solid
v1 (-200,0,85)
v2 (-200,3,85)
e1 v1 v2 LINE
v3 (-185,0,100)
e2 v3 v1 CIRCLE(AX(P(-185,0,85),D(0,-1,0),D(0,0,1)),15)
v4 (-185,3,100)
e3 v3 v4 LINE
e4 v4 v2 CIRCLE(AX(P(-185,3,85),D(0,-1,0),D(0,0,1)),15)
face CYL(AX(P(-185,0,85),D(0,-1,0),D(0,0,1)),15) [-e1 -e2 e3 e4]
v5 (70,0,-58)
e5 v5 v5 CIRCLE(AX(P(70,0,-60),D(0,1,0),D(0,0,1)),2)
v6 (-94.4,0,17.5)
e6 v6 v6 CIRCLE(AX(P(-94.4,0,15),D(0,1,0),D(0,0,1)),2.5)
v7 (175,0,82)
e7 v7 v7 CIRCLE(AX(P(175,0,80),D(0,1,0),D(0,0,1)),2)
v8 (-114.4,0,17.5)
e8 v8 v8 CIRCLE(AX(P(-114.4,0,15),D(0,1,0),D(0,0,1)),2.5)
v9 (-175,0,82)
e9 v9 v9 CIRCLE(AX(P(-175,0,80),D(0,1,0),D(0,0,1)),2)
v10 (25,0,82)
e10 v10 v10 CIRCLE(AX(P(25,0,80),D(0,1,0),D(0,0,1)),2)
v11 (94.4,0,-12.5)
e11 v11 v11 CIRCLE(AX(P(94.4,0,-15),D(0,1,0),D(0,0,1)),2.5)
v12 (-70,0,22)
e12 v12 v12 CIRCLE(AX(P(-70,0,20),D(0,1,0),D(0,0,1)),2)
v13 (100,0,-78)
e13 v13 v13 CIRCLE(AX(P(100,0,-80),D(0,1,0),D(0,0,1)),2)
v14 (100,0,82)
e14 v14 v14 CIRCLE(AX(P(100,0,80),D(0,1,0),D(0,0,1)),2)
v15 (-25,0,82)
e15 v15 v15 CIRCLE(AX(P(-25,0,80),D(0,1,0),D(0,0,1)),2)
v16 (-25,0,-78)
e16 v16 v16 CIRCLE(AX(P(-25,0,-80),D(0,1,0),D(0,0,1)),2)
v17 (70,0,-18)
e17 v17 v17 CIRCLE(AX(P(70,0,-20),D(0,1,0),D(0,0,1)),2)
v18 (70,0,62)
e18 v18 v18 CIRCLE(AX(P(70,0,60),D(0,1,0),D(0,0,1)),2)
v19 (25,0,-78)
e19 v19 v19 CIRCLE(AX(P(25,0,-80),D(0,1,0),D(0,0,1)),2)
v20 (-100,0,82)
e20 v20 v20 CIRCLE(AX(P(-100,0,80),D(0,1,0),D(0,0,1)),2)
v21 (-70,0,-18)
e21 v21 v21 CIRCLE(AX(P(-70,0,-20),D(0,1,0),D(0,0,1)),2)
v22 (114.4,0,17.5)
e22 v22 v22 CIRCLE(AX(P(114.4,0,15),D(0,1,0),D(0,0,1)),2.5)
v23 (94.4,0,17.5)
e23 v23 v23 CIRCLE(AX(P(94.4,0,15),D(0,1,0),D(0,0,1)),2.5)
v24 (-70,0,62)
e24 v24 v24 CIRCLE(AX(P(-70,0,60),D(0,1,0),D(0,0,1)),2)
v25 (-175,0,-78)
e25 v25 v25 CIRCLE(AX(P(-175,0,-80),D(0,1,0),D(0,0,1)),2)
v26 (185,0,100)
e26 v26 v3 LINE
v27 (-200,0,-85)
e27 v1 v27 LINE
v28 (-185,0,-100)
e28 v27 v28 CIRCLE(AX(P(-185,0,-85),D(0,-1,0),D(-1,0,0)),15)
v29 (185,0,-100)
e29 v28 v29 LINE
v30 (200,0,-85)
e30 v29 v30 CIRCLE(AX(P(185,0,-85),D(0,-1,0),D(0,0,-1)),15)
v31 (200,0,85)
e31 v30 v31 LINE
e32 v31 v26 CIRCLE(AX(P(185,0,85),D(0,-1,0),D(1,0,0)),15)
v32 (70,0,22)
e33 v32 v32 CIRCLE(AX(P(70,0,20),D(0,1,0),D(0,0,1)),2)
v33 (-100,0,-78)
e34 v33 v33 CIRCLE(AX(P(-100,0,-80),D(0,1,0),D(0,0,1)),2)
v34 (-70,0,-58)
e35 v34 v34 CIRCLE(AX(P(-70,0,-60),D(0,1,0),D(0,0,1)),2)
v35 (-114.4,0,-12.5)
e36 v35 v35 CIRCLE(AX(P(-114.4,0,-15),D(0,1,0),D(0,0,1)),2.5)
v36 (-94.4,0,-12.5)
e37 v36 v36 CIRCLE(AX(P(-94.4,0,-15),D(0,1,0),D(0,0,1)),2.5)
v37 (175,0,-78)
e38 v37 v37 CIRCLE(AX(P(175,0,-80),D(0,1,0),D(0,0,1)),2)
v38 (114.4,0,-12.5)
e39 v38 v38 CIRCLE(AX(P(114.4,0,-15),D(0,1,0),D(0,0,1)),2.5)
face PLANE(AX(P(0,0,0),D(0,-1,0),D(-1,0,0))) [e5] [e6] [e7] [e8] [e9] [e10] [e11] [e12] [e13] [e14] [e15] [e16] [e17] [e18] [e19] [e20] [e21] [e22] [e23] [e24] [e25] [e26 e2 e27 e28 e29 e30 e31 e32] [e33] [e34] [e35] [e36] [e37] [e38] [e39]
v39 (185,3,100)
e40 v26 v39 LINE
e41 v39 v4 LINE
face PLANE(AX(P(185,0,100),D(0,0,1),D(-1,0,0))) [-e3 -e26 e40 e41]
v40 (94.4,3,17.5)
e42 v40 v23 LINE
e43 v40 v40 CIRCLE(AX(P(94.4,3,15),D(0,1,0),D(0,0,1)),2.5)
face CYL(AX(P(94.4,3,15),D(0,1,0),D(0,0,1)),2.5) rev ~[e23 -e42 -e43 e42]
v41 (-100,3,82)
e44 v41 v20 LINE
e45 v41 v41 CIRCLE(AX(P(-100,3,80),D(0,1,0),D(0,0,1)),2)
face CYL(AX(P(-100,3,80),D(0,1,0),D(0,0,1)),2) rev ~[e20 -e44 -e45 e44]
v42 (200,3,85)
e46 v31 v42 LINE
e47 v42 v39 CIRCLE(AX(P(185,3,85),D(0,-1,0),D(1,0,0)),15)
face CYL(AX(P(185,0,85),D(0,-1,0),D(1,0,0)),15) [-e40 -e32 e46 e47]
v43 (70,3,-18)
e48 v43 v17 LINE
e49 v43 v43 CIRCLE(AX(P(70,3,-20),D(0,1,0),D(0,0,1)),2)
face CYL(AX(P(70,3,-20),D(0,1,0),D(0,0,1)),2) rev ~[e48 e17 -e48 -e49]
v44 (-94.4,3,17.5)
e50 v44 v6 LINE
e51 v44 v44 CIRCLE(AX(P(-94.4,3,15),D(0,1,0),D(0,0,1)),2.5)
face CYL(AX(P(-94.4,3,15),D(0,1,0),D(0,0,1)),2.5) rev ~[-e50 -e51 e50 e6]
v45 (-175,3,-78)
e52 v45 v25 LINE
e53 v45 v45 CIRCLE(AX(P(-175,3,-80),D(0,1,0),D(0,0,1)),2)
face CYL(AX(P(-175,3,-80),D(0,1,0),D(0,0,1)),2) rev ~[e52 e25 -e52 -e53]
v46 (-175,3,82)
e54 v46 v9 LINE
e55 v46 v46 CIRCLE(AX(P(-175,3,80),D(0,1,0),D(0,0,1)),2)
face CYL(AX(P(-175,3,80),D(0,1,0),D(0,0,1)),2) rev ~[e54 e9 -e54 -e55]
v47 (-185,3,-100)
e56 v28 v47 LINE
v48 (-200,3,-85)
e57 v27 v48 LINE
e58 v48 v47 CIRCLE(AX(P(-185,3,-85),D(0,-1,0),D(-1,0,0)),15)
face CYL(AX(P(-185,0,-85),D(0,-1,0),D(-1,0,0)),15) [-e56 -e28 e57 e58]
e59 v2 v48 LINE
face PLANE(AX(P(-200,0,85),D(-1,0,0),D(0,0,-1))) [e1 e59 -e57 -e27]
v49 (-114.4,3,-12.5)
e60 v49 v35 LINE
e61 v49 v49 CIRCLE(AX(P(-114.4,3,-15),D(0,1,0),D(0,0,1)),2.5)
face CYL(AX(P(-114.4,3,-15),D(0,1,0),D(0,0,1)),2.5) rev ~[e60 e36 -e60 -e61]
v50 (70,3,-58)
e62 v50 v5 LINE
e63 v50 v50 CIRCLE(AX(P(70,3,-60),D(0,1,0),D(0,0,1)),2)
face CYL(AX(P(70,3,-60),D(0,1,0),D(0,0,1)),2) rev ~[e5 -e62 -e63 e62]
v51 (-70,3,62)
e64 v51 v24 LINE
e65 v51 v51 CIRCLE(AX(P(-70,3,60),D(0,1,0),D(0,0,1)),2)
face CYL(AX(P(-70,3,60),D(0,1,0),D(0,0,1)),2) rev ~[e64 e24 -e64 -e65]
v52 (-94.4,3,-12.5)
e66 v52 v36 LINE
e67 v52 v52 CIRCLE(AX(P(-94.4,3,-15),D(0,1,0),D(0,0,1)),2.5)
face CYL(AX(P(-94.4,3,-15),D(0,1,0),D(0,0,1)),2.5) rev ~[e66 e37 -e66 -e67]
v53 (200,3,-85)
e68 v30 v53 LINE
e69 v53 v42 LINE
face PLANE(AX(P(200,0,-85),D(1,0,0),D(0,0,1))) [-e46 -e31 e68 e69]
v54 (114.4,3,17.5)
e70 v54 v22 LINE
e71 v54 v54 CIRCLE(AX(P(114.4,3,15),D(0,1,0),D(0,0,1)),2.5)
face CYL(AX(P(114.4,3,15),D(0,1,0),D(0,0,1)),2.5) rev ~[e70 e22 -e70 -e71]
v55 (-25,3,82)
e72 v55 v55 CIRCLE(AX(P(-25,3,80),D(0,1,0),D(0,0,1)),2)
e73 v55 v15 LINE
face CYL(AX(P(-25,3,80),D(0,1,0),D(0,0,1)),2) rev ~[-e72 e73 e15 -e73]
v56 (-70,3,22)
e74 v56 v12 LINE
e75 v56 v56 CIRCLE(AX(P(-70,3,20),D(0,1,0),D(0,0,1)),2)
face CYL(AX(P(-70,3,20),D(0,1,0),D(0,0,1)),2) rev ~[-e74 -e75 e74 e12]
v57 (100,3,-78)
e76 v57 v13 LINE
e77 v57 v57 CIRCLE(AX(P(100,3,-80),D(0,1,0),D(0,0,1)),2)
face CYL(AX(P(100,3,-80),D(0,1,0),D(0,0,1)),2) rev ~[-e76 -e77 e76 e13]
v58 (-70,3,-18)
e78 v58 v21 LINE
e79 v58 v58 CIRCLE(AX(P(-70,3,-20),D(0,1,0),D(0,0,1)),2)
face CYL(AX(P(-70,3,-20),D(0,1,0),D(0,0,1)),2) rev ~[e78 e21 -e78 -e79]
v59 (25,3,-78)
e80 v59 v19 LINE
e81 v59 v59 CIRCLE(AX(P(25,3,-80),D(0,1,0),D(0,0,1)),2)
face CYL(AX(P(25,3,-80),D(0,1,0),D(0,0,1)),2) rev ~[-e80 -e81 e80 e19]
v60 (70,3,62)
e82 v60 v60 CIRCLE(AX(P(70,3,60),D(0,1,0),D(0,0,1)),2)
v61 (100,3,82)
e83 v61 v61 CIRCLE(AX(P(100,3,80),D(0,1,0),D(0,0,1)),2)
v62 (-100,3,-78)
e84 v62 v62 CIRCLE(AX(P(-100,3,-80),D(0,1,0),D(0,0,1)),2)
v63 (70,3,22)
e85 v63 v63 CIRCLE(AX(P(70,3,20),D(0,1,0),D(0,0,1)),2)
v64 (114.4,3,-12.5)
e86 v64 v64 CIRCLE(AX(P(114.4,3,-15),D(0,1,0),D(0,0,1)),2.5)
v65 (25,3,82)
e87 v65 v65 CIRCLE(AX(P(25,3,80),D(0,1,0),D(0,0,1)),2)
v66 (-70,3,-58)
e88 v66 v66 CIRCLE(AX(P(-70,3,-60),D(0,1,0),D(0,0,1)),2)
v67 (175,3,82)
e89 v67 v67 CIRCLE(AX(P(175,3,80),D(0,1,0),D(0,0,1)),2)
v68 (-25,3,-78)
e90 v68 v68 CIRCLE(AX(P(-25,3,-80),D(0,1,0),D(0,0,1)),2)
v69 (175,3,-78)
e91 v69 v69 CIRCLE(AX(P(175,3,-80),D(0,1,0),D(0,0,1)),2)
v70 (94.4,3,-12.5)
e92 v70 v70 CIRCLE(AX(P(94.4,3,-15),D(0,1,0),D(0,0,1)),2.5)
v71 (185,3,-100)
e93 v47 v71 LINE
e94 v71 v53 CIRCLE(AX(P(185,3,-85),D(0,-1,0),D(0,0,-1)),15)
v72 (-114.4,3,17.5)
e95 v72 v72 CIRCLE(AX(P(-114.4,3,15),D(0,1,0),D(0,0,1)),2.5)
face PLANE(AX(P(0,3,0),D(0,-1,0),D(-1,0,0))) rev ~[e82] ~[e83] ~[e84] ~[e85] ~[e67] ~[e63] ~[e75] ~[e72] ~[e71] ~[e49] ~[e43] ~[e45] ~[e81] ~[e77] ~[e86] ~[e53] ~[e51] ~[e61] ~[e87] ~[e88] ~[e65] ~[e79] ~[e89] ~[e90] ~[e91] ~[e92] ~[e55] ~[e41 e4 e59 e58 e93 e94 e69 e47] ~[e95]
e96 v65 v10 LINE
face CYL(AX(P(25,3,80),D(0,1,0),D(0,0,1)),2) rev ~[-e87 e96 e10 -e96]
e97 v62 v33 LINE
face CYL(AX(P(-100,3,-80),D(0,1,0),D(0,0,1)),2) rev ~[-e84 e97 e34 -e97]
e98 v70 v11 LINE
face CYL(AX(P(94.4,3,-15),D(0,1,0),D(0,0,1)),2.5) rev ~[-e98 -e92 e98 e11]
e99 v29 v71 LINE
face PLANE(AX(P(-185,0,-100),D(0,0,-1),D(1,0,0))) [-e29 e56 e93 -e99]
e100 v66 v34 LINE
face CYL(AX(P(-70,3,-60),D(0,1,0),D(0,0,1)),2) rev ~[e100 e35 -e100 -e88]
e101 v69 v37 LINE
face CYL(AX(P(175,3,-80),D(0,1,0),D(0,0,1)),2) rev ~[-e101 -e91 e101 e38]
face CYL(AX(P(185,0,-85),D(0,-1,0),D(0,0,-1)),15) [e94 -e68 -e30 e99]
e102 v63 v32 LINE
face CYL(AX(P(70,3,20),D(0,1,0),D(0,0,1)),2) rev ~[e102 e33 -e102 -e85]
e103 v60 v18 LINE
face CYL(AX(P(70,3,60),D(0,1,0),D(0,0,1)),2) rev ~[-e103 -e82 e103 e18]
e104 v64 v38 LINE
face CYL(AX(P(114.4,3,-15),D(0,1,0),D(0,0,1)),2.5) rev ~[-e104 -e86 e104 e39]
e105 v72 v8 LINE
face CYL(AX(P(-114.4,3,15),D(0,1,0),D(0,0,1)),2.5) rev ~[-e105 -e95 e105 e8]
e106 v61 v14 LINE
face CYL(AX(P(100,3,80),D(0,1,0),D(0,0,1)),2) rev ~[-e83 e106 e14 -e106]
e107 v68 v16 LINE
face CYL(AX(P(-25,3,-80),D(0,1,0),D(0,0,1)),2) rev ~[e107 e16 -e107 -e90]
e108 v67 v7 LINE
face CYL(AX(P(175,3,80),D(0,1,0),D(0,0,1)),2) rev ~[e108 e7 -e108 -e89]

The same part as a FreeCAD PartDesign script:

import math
import FreeCAD as App
import Part
import Sketcher

V = App.Vector
Q = App.Units.Quantity

doc = App.newDocument("Part")
body = doc.addObject("PartDesign::Body", "Body")

sketch1 = body.newObject("Sketcher::SketchObject", "Sketch")
sketch1.AttachmentSupport = (doc.getObject("XZ_Plane"), [""])
sketch1.MapMode = "FlatFace"
sketch1.addGeometry(Part.LineSegment(V(185, -100, 0), V(-185, -100, 0)), False)
sketch1.addGeometry(Part.ArcOfCircle(Part.Circle(V(-185, -85, 0), V(0, 0, 1), 15), math.radians(180), math.radians(270)), False)
sketch1.addGeometry(Part.LineSegment(V(-200, -85, 0), V(-200, 85, 0)), False)
sketch1.addGeometry(Part.ArcOfCircle(Part.Circle(V(-185, 85, 0), V(0, 0, 1), 15), math.radians(90), math.radians(180)), False)
sketch1.addGeometry(Part.LineSegment(V(-185, 100, 0), V(185, 100, 0)), False)
sketch1.addGeometry(Part.ArcOfCircle(Part.Circle(V(185, 85, 0), V(0, 0, 1), 15), math.radians(0), math.radians(90)), False)
sketch1.addGeometry(Part.LineSegment(V(200, 85, 0), V(200, -85, 0)), False)
sketch1.addGeometry(Part.ArcOfCircle(Part.Circle(V(185, -85, 0), V(0, 0, 1), 15), math.radians(-90), math.radians(0)), False)
sketch1.addConstraint(Sketcher.Constraint("Tangent", 0, 2, 1, 2))
sketch1.addConstraint(Sketcher.Constraint("Tangent", 1, 1, 2, 1))
sketch1.addConstraint(Sketcher.Constraint("Tangent", 2, 2, 3, 2))
sketch1.addConstraint(Sketcher.Constraint("Tangent", 3, 1, 4, 1))
sketch1.addConstraint(Sketcher.Constraint("Tangent", 4, 2, 5, 2))
sketch1.addConstraint(Sketcher.Constraint("Tangent", 5, 1, 6, 1))
sketch1.addConstraint(Sketcher.Constraint("Tangent", 6, 2, 7, 2))
sketch1.addConstraint(Sketcher.Constraint("Tangent", 7, 1, 0, 1))
sketch1.addConstraint(Sketcher.Constraint("Horizontal", 0))
sketch1.addConstraint(Sketcher.Constraint("Vertical", 2))
sketch1.addConstraint(Sketcher.Constraint("Horizontal", 4))
sketch1.addConstraint(Sketcher.Constraint("Vertical", 6))
sketch1.addConstraint(Sketcher.Constraint("Equal", 1, 3))
sketch1.addConstraint(Sketcher.Constraint("Equal", 3, 5))
sketch1.addConstraint(Sketcher.Constraint("Equal", 5, 7))
sketch1.addConstraint(Sketcher.Constraint("Symmetric", 1, 3, 5, 3, -1, 1))
sketch1.addConstraint(Sketcher.Constraint("Radius", 1, Q("15 mm")))
sketch1.addConstraint(Sketcher.Constraint("DistanceX", 0, 2, 0, 1, Q("370 mm")))
sketch1.addConstraint(Sketcher.Constraint("DistanceY", 2, 1, 2, 2, Q("170 mm")))
pad1 = body.newObject("PartDesign::Pad", "Pad")
pad1.Profile = sketch1
pad1.Length = 3
pad1.Reversed = True

sketch2 = body.newObject("Sketcher::SketchObject", "Sketch001")
sketch2.AttachmentSupport = (doc.getObject("XZ_Plane"), [""])
sketch2.MapMode = "FlatFace"
sketch2.AttachmentOffset = App.Placement(V(0, 0, -3), App.Rotation())
sketch2.addGeometry(Part.Circle(V(-114.4, -15, 0), V(0, 0, 1), 2.5), False)
sketch2.addGeometry(Part.Circle(V(-94.4, -15, 0), V(0, 0, 1), 2.5), False)
sketch2.addGeometry(Part.Circle(V(-114.4, 15, 0), V(0, 0, 1), 2.5), False)
sketch2.addGeometry(Part.Circle(V(-94.4, 15, 0), V(0, 0, 1), 2.5), False)
sketch2.addGeometry(Part.Circle(V(94.4, -15, 0), V(0, 0, 1), 2.5), False)
sketch2.addGeometry(Part.Circle(V(114.4, -15, 0), V(0, 0, 1), 2.5), False)
sketch2.addGeometry(Part.Circle(V(114.4, 15, 0), V(0, 0, 1), 2.5), False)
sketch2.addGeometry(Part.Circle(V(94.4, 15, 0), V(0, 0, 1), 2.5), False)
sketch2.addConstraint(Sketcher.Constraint("Equal", 0, 1))
sketch2.addConstraint(Sketcher.Constraint("Equal", 1, 2))
sketch2.addConstraint(Sketcher.Constraint("Equal", 2, 3))
sketch2.addConstraint(Sketcher.Constraint("Equal", 3, 4))
sketch2.addConstraint(Sketcher.Constraint("Equal", 4, 5))
sketch2.addConstraint(Sketcher.Constraint("Equal", 5, 6))
sketch2.addConstraint(Sketcher.Constraint("Equal", 6, 7))
sketch2.addConstraint(Sketcher.Constraint("Symmetric", 3, 3, 4, 3, -1, 1))
sketch2.addConstraint(Sketcher.Constraint("Symmetric", 2, 3, 5, 3, -1, 1))
sketch2.addConstraint(Sketcher.Constraint("Symmetric", 0, 3, 6, 3, -1, 1))
sketch2.addConstraint(Sketcher.Constraint("Symmetric", 1, 3, 7, 3, -1, 1))
sketch2.addConstraint(Sketcher.Constraint("Symmetric", 1, 3, 4, 3, -2))
sketch2.addConstraint(Sketcher.Constraint("Symmetric", 0, 3, 5, 3, -2))
sketch2.addConstraint(Sketcher.Constraint("Horizontal", 0, 3, 1, 3))
sketch2.addConstraint(Sketcher.Constraint("Diameter", 0, Q("5 mm")))
sketch2.addConstraint(Sketcher.Constraint("DistanceY", 0, 3, -1, 1, Q("15 mm")))
sketch2.addConstraint(Sketcher.Constraint("DistanceX", 0, 3, 1, 3, Q("20 mm")))
sketch2.addConstraint(Sketcher.Constraint("DistanceX", 0, 3, -1, 1, Q("114.4 mm")))
pocket1 = body.newObject("PartDesign::Pocket", "Pocket")
pocket1.Profile = sketch2
pocket1.Length = 3
pocket1.Reversed = True

sketch3 = body.newObject("Sketcher::SketchObject", "Sketch002")
sketch3.AttachmentSupport = (doc.getObject("XZ_Plane"), [""])
sketch3.MapMode = "FlatFace"
sketch3.AttachmentOffset = App.Placement(V(0, 0, -3), App.Rotation())
sketch3.addGeometry(Part.Circle(V(-175, -80, 0), V(0, 0, 1), 2), False)
sketch3.addGeometry(Part.Circle(V(-100, -80, 0), V(0, 0, 1), 2), False)
sketch3.addGeometry(Part.Circle(V(-25, -80, 0), V(0, 0, 1), 2), False)
sketch3.addGeometry(Part.Circle(V(175, -80, 0), V(0, 0, 1), 2), False)
sketch3.addGeometry(Part.Circle(V(100, -80, 0), V(0, 0, 1), 2), False)
sketch3.addGeometry(Part.Circle(V(25, -80, 0), V(0, 0, 1), 2), False)
sketch3.addConstraint(Sketcher.Constraint("Equal", 0, 1))
sketch3.addConstraint(Sketcher.Constraint("Equal", 1, 2))
sketch3.addConstraint(Sketcher.Constraint("Equal", 2, 3))
sketch3.addConstraint(Sketcher.Constraint("Equal", 3, 4))
sketch3.addConstraint(Sketcher.Constraint("Equal", 4, 5))
sketch3.addConstraint(Sketcher.Constraint("Symmetric", 0, 3, 3, 3, -2))
sketch3.addConstraint(Sketcher.Constraint("Symmetric", 1, 3, 4, 3, -2))
sketch3.addConstraint(Sketcher.Constraint("Symmetric", 2, 3, 5, 3, -2))
sketch3.addConstraint(Sketcher.Constraint("Horizontal", 0, 3, 1, 3))
sketch3.addConstraint(Sketcher.Constraint("Horizontal", 1, 3, 2, 3))
sketch3.addConstraint(Sketcher.Constraint("Diameter", 0, Q("4 mm")))
sketch3.addConstraint(Sketcher.Constraint("DistanceX", 0, 3, -1, 1, Q("175 mm")))
sketch3.addConstraint(Sketcher.Constraint("DistanceY", 0, 3, -1, 1, Q("80 mm")))
sketch3.addConstraint(Sketcher.Constraint("DistanceX", 1, 3, -1, 1, Q("100 mm")))
sketch3.addConstraint(Sketcher.Constraint("DistanceX", 2, 3, -1, 1, Q("25 mm")))
pocket2 = body.newObject("PartDesign::Pocket", "Pocket001")
pocket2.Profile = sketch3
pocket2.Type = "ThroughAll"
pocket2.Reversed = True

sketch4 = body.newObject("Sketcher::SketchObject", "Sketch003")
sketch4.AttachmentSupport = (doc.getObject("XZ_Plane"), [""])
sketch4.MapMode = "FlatFace"
sketch4.AttachmentOffset = App.Placement(V(0, 0, -3), App.Rotation())
sketch4.addGeometry(Part.Circle(V(-175, 80, 0), V(0, 0, 1), 2), False)
sketch4.addGeometry(Part.Circle(V(-100, 80, 0), V(0, 0, 1), 2), False)
sketch4.addGeometry(Part.Circle(V(-25, 80, 0), V(0, 0, 1), 2), False)
sketch4.addGeometry(Part.Circle(V(25, 80, 0), V(0, 0, 1), 2), False)
sketch4.addGeometry(Part.Circle(V(100, 80, 0), V(0, 0, 1), 2), False)
sketch4.addGeometry(Part.Circle(V(175, 80, 0), V(0, 0, 1), 2), False)
sketch4.addConstraint(Sketcher.Constraint("Equal", 0, 1))
sketch4.addConstraint(Sketcher.Constraint("Equal", 1, 2))
sketch4.addConstraint(Sketcher.Constraint("Equal", 2, 3))
sketch4.addConstraint(Sketcher.Constraint("Equal", 3, 4))
sketch4.addConstraint(Sketcher.Constraint("Equal", 4, 5))
sketch4.addConstraint(Sketcher.Constraint("Symmetric", 2, 3, 3, 3, -2))
sketch4.addConstraint(Sketcher.Constraint("Symmetric", 1, 3, 4, 3, -2))
sketch4.addConstraint(Sketcher.Constraint("Symmetric", 0, 3, 5, 3, -2))
sketch4.addConstraint(Sketcher.Constraint("Horizontal", 0, 3, 1, 3))
sketch4.addConstraint(Sketcher.Constraint("Horizontal", 1, 3, 2, 3))
sketch4.addConstraint(Sketcher.Constraint("Diameter", 0, Q("4 mm")))
sketch4.addConstraint(Sketcher.Constraint("DistanceX", 0, 3, -1, 1, Q("175 mm")))
sketch4.addConstraint(Sketcher.Constraint("DistanceY", -1, 1, 0, 3, Q("80 mm")))
sketch4.addConstraint(Sketcher.Constraint("DistanceX", 1, 3, -1, 1, Q("100 mm")))
sketch4.addConstraint(Sketcher.Constraint("DistanceX", 2, 3, -1, 1, Q("25 mm")))
pocket3 = body.newObject("PartDesign::Pocket", "Pocket002")
pocket3.Profile = sketch4
pocket3.Type = "ThroughAll"
pocket3.Reversed = True

sketch5 = body.newObject("Sketcher::SketchObject", "Sketch004")
sketch5.AttachmentSupport = (doc.getObject("XZ_Plane"), [""])
sketch5.MapMode = "FlatFace"
sketch5.AttachmentOffset = App.Placement(V(0, 0, -3), App.Rotation())
sketch5.addGeometry(Part.Circle(V(-70, -60, 0), V(0, 0, 1), 2), False)
sketch5.addGeometry(Part.Circle(V(-70, -20, 0), V(0, 0, 1), 2), False)
sketch5.addGeometry(Part.Circle(V(-70, 20, 0), V(0, 0, 1), 2), False)
sketch5.addGeometry(Part.Circle(V(-70, 60, 0), V(0, 0, 1), 2), False)
sketch5.addConstraint(Sketcher.Constraint("Equal", 0, 1))
sketch5.addConstraint(Sketcher.Constraint("Equal", 1, 2))
sketch5.addConstraint(Sketcher.Constraint("Equal", 2, 3))
sketch5.addConstraint(Sketcher.Constraint("Symmetric", 1, 3, 2, 3, -1))
sketch5.addConstraint(Sketcher.Constraint("Symmetric", 0, 3, 3, 3, -1))
sketch5.addConstraint(Sketcher.Constraint("Vertical", 0, 3, 1, 3))
sketch5.addConstraint(Sketcher.Constraint("Diameter", 0, Q("4 mm")))
sketch5.addConstraint(Sketcher.Constraint("DistanceX", 0, 3, -1, 1, Q("70 mm")))
sketch5.addConstraint(Sketcher.Constraint("DistanceY", 0, 3, -1, 1, Q("60 mm")))
sketch5.addConstraint(Sketcher.Constraint("DistanceY", 1, 3, -1, 1, Q("20 mm")))
pocket4 = body.newObject("PartDesign::Pocket", "Pocket003")
pocket4.Profile = sketch5
pocket4.Type = "ThroughAll"
pocket4.Reversed = True

sketch6 = body.newObject("Sketcher::SketchObject", "Sketch005")
sketch6.AttachmentSupport = (doc.getObject("XZ_Plane"), [""])
sketch6.MapMode = "FlatFace"
sketch6.AttachmentOffset = App.Placement(V(0, 0, -3), App.Rotation())
sketch6.addGeometry(Part.Circle(V(70, -60, 0), V(0, 0, 1), 2), False)
sketch6.addGeometry(Part.Circle(V(70, -20, 0), V(0, 0, 1), 2), False)
sketch6.addGeometry(Part.Circle(V(70, 20, 0), V(0, 0, 1), 2), False)
sketch6.addGeometry(Part.Circle(V(70, 60, 0), V(0, 0, 1), 2), False)
sketch6.addConstraint(Sketcher.Constraint("Equal", 0, 1))
sketch6.addConstraint(Sketcher.Constraint("Equal", 1, 2))
sketch6.addConstraint(Sketcher.Constraint("Equal", 2, 3))
sketch6.addConstraint(Sketcher.Constraint("Symmetric", 1, 3, 2, 3, -1))
sketch6.addConstraint(Sketcher.Constraint("Symmetric", 0, 3, 3, 3, -1))
sketch6.addConstraint(Sketcher.Constraint("Vertical", 0, 3, 1, 3))
sketch6.addConstraint(Sketcher.Constraint("Diameter", 0, Q("4 mm")))
sketch6.addConstraint(Sketcher.Constraint("DistanceX", -1, 1, 0, 3, Q("70 mm")))
sketch6.addConstraint(Sketcher.Constraint("DistanceY", 0, 3, -1, 1, Q("60 mm")))
sketch6.addConstraint(Sketcher.Constraint("DistanceY", 1, 3, -1, 1, Q("20 mm")))
pocket5 = body.newObject("PartDesign::Pocket", "Pocket004")
pocket5.Profile = sketch6
pocket5.Type = "ThroughAll"
pocket5.Reversed = True

doc.recompute()
